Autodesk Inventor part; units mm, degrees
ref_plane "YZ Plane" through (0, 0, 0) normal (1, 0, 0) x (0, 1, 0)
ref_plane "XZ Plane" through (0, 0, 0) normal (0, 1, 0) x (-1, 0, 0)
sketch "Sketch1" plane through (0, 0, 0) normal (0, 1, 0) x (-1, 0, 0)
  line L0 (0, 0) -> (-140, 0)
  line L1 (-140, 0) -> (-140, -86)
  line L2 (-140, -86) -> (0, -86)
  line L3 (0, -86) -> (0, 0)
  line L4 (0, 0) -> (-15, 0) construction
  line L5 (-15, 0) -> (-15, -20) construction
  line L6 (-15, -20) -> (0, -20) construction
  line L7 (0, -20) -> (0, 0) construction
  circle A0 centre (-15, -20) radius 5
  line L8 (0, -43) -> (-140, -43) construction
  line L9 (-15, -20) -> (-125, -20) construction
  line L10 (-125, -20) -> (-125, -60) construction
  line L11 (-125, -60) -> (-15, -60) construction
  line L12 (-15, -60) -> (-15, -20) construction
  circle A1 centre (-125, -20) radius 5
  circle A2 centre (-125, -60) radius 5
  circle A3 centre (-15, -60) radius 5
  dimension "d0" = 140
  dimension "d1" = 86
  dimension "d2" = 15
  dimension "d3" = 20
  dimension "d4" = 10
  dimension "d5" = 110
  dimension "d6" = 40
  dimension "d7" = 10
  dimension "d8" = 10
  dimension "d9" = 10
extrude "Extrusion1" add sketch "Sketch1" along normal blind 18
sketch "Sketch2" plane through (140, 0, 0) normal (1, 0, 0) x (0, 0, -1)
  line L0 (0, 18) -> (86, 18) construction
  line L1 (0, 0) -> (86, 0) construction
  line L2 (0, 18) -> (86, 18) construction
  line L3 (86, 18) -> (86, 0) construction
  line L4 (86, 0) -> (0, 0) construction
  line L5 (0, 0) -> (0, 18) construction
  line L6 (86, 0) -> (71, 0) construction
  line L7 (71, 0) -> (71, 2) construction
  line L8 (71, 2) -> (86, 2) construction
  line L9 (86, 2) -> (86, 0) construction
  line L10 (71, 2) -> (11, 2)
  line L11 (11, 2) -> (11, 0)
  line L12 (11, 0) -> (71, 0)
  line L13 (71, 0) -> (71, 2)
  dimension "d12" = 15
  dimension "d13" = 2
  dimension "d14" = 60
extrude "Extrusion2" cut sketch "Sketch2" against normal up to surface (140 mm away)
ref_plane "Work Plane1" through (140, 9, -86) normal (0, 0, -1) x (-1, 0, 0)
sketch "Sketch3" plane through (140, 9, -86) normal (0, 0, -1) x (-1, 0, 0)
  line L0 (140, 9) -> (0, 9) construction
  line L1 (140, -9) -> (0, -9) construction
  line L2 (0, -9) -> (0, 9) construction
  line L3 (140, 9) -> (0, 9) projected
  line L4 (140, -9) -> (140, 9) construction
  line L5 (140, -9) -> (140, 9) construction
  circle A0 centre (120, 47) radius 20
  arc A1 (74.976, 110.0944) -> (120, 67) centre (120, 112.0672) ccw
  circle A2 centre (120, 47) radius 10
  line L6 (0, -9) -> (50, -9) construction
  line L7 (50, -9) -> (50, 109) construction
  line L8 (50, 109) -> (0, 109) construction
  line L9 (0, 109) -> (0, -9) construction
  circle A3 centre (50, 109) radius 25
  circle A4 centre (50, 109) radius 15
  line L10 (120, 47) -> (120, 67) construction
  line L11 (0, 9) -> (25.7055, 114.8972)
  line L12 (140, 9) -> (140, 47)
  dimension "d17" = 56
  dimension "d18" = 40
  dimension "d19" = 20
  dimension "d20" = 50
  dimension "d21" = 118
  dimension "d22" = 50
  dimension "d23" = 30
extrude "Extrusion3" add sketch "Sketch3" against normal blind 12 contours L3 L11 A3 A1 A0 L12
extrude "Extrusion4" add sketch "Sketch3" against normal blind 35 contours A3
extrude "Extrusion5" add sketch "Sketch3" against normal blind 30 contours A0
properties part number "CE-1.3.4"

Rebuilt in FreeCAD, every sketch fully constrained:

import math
import FreeCAD as App
import Part
import Sketcher

V = App.Vector
Q = App.Units.Quantity


def add_polygon(sketch, points):
    """Adds a closed chain of lines whose ends are joined by coincident constraints."""
    first, n = sketch.GeometryCount, len(points)
    for a, b in zip(points, points[1:] + points[:1]):
        sketch.addGeometry(Part.LineSegment(App.Vector(*a, 0), App.Vector(*b, 0)), False)
    for i in range(n):
        sketch.addConstraint(Sketcher.Constraint("Coincident", first + i, 2, first + (i + 1) % n, 1))

doc = App.newDocument("Part")
body = doc.addObject("PartDesign::Body", "Body")

# Sketch on XZ plane
sketch1 = body.newObject("Sketcher::SketchObject", "Sketch")
sketch1.AttachmentSupport = (doc.getObject("XZ_Plane"), [""])
sketch1.MapMode = "FlatFace"
add_polygon(sketch1, [(0, -86), (0, 0), (140, 0), (140, -86)])  # lines 0-3
sketch1.addGeometry(Part.Circle(V(125, -60, 0), V(0, 0, 1), 5), False)  # 4
sketch1.addGeometry(Part.Circle(V(15, -60, 0), V(0, 0, 1), 5), False)  # 5
sketch1.addGeometry(Part.Circle(V(125, -20, 0), V(0, 0, 1), 5), False)  # 6
sketch1.addGeometry(Part.Circle(V(15, -20, 0), V(0, 0, 1), 5), False)  # 7
sketch1.addConstraint(Sketcher.Constraint("Vertical", 0))
sketch1.addConstraint(Sketcher.Constraint("Horizontal", 1))
sketch1.addConstraint(Sketcher.Constraint("Vertical", 2))
sketch1.addConstraint(Sketcher.Constraint("Horizontal", 3))
sketch1.addConstraint(Sketcher.Constraint("Coincident", 0, 2, -1, 1))
sketch1.addConstraint(Sketcher.Constraint("Equal", 4, 5))
sketch1.addConstraint(Sketcher.Constraint("Equal", 5, 6))
sketch1.addConstraint(Sketcher.Constraint("Equal", 6, 7))
sketch1.addConstraint(Sketcher.Constraint("Horizontal", 4, 3, 5, 3))
sketch1.addConstraint(Sketcher.Constraint("Horizontal", 6, 3, 7, 3))
sketch1.addConstraint(Sketcher.Constraint("Vertical", 4, 3, 6, 3))
sketch1.addConstraint(Sketcher.Constraint("Vertical", 5, 3, 7, 3))
sketch1.addConstraint(Sketcher.Constraint("Diameter", 4, Q("10 mm")))
sketch1.addConstraint(Sketcher.Constraint("DistanceX", 1, 1, 1, 2, Q("140 mm")))
sketch1.addConstraint(Sketcher.Constraint("DistanceY", 0, 1, 0, 2, Q("86 mm")))
sketch1.addConstraint(Sketcher.Constraint("DistanceX", -1, 1, 5, 3, Q("15 mm")))
sketch1.addConstraint(Sketcher.Constraint("DistanceY", 6, 3, -1, 1, Q("20 mm")))
sketch1.addConstraint(Sketcher.Constraint("DistanceX", 5, 3, 4, 3, Q("110 mm")))
sketch1.addConstraint(Sketcher.Constraint("DistanceY", 4, 3, 6, 3, Q("40 mm")))
pad1 = body.newObject("PartDesign::Pad", "Pad")
pad1.Profile = sketch1
pad1.Length = 18
pad1.Reversed = True

# Sketch on YZ plane
sketch2 = body.newObject("Sketcher::SketchObject", "Sketch001")
sketch2.AttachmentSupport = (doc.getObject("YZ_Plane"), [""])
sketch2.MapMode = "FlatFace"
sketch2.AttachmentOffset = App.Placement(V(0, 0, 140), App.Rotation())
add_polygon(sketch2, [(0, -71), (2, -71), (2, -11), (0, -11)])  # lines 0-3
sketch2.addConstraint(Sketcher.Constraint("Horizontal", 0))
sketch2.addConstraint(Sketcher.Constraint("Vertical", 1))
sketch2.addConstraint(Sketcher.Constraint("Horizontal", 2))
sketch2.addConstraint(Sketcher.Constraint("Vertical", 3))
sketch2.addConstraint(Sketcher.Constraint("PointOnObject", 2, 2, -2))
sketch2.addConstraint(Sketcher.Constraint("DistanceX", 0, 1, 0, 2, Q("2 mm")))
sketch2.addConstraint(Sketcher.Constraint("DistanceY", 1, 1, 1, 2, Q("60 mm")))
sketch2.addConstraint(Sketcher.Constraint("DistanceY", 0, 2, -1, 1, Q("71 mm")))
pocket1 = body.newObject("PartDesign::Pocket", "Pocket")
pocket1.Profile = sketch2
pocket1.Length = 140

# Sketch on XY plane
sketch3 = body.newObject("Sketcher::SketchObject", "Sketch002")
sketch3.AttachmentSupport = (doc.getObject("XY_Plane"), [""])
sketch3.MapMode = "FlatFace"
sketch3.AttachmentOffset = App.Placement(V(0, 0, -86), App.Rotation())
sketch3.addGeometry(Part.LineSegment(V(140, 18, 0), V(0, 18, 0)), False)
sketch3.addGeometry(Part.LineSegment(V(0, 18, 0), V(0, 56, 0)), False)
sketch3.addGeometry(Part.ArcOfCircle(Part.Circle(V(20, 56, 0), V(0, 0, 1), 20), math.radians(180), math.radians(450)), False)
sketch3.addGeometry(Part.ArcOfCircle(Part.Circle(V(20, 121, 0), V(0, 0, 1), 45), math.radians(-90), math.radians(-3)), False)
sketch3.addGeometry(Part.ArcOfCircle(Part.Circle(V(90, 118, 0), V(0, 0, 1), 25), math.radians(177), math.radians(374)), False)
sketch3.addGeometry(Part.LineSegment(V(114, 124, 0), V(140, 18, 0)), False)
sketch3.addConstraint(Sketcher.Constraint("Coincident", 0, 2, 1, 1))
sketch3.addConstraint(Sketcher.Constraint("Tangent", 1, 2, 2, 1))
sketch3.addConstraint(Sketcher.Constraint("Tangent", 2, 2, 3, 1))
sketch3.addConstraint(Sketcher.Constraint("Tangent", 3, 2, 4, 1))
sketch3.addConstraint(Sketcher.Constraint("Tangent", 4, 2, 5, 1))
sketch3.addConstraint(Sketcher.Constraint("Coincident", 5, 2, 0, 1))
sketch3.addConstraint(Sketcher.Constraint("Horizontal", 0))
sketch3.addConstraint(Sketcher.Constraint("Vertical", 1))
sketch3.addConstraint(Sketcher.Constraint("PointOnObject", 0, 2, -2))
sketch3.addConstraint(Sketcher.Constraint("Vertical", 2, 3, 3, 3))
sketch3.addConstraint(Sketcher.Constraint("Radius", 2, Q("20 mm")))
sketch3.addConstraint(Sketcher.Constraint("Radius", 4, Q("25 mm")))
sketch3.addConstraint(Sketcher.Constraint("DistanceY", -1, 1, 2, 3, Q("56 mm")))
sketch3.addConstraint(Sketcher.Constraint("DistanceY", -1, 1, 4, 3, Q("118 mm")))
sketch3.addConstraint(Sketcher.Constraint("DistanceX", 4, 3, 5, 2, Q("50 mm")))
sketch3.addConstraint(Sketcher.Constraint("DistanceX", 0, 2, 0, 1, Q("140 mm")))
sketch3.addConstraint(Sketcher.Constraint("DistanceY", 1, 1, 1, 2, Q("38 mm")))
pad2 = body.newObject("PartDesign::Pad", "Pad001")
pad2.Profile = sketch3
pad2.Length = 12

# Sketch on XY plane
sketch4 = body.newObject("Sketcher::SketchObject", "Sketch003")
sketch4.AttachmentSupport = (doc.getObject("XY_Plane"), [""])
sketch4.MapMode = "FlatFace"
sketch4.AttachmentOffset = App.Placement(V(0, 0, -86), App.Rotation())
sketch4.addGeometry(Part.Circle(V(90, 118, 0), V(0, 0, 1), 25), False)
sketch4.addGeometry(Part.Circle(V(90, 118, 0), V(0, 0, 1), 15), False)
sketch4.addConstraint(Sketcher.Constraint("Coincident", 1, 3, 0, 3))
sketch4.addConstraint(Sketcher.Constraint("Diameter", 0, Q("50 mm")))
sketch4.addConstraint(Sketcher.Constraint("Diameter", 1, Q("30 mm")))
sketch4.addConstraint(Sketcher.Constraint("DistanceY", -1, 1, 0, 3, Q("118 mm")))
sketch4.addConstraint(Sketcher.Constraint("DistanceX", -1, 1, 0, 3, Q("90 mm")))
pad3 = body.newObject("PartDesign::Pad", "Pad002")
pad3.Profile = sketch4
pad3.Length = 35

# Sketch on XY plane
sketch5 = body.newObject("Sketcher::SketchObject", "Sketch004")
sketch5.AttachmentSupport = (doc.getObject("XY_Plane"), [""])
sketch5.MapMode = "FlatFace"
sketch5.AttachmentOffset = App.Placement(V(0, 0, -86), App.Rotation())
sketch5.addGeometry(Part.Circle(V(20, 56, 0), V(0, 0, 1), 20), False)
sketch5.addGeometry(Part.Circle(V(20, 56, 0), V(0, 0, 1), 10), False)
sketch5.addConstraint(Sketcher.Constraint("Coincident", 1, 3, 0, 3))
sketch5.addConstraint(Sketcher.Constraint("Diameter", 0, Q("40 mm")))
sketch5.addConstraint(Sketcher.Constraint("Diameter", 1, Q("20 mm")))
sketch5.addConstraint(Sketcher.Constraint("DistanceX", -1, 1, 0, 3, Q("20 mm")))
sketch5.addConstraint(Sketcher.Constraint("DistanceY", -1, 1, 0, 3, Q("56 mm")))
pad4 = body.newObject("PartDesign::Pad", "Pad003")
pad4.Profile = sketch5
pad4.Length = 30

doc.recompute()
